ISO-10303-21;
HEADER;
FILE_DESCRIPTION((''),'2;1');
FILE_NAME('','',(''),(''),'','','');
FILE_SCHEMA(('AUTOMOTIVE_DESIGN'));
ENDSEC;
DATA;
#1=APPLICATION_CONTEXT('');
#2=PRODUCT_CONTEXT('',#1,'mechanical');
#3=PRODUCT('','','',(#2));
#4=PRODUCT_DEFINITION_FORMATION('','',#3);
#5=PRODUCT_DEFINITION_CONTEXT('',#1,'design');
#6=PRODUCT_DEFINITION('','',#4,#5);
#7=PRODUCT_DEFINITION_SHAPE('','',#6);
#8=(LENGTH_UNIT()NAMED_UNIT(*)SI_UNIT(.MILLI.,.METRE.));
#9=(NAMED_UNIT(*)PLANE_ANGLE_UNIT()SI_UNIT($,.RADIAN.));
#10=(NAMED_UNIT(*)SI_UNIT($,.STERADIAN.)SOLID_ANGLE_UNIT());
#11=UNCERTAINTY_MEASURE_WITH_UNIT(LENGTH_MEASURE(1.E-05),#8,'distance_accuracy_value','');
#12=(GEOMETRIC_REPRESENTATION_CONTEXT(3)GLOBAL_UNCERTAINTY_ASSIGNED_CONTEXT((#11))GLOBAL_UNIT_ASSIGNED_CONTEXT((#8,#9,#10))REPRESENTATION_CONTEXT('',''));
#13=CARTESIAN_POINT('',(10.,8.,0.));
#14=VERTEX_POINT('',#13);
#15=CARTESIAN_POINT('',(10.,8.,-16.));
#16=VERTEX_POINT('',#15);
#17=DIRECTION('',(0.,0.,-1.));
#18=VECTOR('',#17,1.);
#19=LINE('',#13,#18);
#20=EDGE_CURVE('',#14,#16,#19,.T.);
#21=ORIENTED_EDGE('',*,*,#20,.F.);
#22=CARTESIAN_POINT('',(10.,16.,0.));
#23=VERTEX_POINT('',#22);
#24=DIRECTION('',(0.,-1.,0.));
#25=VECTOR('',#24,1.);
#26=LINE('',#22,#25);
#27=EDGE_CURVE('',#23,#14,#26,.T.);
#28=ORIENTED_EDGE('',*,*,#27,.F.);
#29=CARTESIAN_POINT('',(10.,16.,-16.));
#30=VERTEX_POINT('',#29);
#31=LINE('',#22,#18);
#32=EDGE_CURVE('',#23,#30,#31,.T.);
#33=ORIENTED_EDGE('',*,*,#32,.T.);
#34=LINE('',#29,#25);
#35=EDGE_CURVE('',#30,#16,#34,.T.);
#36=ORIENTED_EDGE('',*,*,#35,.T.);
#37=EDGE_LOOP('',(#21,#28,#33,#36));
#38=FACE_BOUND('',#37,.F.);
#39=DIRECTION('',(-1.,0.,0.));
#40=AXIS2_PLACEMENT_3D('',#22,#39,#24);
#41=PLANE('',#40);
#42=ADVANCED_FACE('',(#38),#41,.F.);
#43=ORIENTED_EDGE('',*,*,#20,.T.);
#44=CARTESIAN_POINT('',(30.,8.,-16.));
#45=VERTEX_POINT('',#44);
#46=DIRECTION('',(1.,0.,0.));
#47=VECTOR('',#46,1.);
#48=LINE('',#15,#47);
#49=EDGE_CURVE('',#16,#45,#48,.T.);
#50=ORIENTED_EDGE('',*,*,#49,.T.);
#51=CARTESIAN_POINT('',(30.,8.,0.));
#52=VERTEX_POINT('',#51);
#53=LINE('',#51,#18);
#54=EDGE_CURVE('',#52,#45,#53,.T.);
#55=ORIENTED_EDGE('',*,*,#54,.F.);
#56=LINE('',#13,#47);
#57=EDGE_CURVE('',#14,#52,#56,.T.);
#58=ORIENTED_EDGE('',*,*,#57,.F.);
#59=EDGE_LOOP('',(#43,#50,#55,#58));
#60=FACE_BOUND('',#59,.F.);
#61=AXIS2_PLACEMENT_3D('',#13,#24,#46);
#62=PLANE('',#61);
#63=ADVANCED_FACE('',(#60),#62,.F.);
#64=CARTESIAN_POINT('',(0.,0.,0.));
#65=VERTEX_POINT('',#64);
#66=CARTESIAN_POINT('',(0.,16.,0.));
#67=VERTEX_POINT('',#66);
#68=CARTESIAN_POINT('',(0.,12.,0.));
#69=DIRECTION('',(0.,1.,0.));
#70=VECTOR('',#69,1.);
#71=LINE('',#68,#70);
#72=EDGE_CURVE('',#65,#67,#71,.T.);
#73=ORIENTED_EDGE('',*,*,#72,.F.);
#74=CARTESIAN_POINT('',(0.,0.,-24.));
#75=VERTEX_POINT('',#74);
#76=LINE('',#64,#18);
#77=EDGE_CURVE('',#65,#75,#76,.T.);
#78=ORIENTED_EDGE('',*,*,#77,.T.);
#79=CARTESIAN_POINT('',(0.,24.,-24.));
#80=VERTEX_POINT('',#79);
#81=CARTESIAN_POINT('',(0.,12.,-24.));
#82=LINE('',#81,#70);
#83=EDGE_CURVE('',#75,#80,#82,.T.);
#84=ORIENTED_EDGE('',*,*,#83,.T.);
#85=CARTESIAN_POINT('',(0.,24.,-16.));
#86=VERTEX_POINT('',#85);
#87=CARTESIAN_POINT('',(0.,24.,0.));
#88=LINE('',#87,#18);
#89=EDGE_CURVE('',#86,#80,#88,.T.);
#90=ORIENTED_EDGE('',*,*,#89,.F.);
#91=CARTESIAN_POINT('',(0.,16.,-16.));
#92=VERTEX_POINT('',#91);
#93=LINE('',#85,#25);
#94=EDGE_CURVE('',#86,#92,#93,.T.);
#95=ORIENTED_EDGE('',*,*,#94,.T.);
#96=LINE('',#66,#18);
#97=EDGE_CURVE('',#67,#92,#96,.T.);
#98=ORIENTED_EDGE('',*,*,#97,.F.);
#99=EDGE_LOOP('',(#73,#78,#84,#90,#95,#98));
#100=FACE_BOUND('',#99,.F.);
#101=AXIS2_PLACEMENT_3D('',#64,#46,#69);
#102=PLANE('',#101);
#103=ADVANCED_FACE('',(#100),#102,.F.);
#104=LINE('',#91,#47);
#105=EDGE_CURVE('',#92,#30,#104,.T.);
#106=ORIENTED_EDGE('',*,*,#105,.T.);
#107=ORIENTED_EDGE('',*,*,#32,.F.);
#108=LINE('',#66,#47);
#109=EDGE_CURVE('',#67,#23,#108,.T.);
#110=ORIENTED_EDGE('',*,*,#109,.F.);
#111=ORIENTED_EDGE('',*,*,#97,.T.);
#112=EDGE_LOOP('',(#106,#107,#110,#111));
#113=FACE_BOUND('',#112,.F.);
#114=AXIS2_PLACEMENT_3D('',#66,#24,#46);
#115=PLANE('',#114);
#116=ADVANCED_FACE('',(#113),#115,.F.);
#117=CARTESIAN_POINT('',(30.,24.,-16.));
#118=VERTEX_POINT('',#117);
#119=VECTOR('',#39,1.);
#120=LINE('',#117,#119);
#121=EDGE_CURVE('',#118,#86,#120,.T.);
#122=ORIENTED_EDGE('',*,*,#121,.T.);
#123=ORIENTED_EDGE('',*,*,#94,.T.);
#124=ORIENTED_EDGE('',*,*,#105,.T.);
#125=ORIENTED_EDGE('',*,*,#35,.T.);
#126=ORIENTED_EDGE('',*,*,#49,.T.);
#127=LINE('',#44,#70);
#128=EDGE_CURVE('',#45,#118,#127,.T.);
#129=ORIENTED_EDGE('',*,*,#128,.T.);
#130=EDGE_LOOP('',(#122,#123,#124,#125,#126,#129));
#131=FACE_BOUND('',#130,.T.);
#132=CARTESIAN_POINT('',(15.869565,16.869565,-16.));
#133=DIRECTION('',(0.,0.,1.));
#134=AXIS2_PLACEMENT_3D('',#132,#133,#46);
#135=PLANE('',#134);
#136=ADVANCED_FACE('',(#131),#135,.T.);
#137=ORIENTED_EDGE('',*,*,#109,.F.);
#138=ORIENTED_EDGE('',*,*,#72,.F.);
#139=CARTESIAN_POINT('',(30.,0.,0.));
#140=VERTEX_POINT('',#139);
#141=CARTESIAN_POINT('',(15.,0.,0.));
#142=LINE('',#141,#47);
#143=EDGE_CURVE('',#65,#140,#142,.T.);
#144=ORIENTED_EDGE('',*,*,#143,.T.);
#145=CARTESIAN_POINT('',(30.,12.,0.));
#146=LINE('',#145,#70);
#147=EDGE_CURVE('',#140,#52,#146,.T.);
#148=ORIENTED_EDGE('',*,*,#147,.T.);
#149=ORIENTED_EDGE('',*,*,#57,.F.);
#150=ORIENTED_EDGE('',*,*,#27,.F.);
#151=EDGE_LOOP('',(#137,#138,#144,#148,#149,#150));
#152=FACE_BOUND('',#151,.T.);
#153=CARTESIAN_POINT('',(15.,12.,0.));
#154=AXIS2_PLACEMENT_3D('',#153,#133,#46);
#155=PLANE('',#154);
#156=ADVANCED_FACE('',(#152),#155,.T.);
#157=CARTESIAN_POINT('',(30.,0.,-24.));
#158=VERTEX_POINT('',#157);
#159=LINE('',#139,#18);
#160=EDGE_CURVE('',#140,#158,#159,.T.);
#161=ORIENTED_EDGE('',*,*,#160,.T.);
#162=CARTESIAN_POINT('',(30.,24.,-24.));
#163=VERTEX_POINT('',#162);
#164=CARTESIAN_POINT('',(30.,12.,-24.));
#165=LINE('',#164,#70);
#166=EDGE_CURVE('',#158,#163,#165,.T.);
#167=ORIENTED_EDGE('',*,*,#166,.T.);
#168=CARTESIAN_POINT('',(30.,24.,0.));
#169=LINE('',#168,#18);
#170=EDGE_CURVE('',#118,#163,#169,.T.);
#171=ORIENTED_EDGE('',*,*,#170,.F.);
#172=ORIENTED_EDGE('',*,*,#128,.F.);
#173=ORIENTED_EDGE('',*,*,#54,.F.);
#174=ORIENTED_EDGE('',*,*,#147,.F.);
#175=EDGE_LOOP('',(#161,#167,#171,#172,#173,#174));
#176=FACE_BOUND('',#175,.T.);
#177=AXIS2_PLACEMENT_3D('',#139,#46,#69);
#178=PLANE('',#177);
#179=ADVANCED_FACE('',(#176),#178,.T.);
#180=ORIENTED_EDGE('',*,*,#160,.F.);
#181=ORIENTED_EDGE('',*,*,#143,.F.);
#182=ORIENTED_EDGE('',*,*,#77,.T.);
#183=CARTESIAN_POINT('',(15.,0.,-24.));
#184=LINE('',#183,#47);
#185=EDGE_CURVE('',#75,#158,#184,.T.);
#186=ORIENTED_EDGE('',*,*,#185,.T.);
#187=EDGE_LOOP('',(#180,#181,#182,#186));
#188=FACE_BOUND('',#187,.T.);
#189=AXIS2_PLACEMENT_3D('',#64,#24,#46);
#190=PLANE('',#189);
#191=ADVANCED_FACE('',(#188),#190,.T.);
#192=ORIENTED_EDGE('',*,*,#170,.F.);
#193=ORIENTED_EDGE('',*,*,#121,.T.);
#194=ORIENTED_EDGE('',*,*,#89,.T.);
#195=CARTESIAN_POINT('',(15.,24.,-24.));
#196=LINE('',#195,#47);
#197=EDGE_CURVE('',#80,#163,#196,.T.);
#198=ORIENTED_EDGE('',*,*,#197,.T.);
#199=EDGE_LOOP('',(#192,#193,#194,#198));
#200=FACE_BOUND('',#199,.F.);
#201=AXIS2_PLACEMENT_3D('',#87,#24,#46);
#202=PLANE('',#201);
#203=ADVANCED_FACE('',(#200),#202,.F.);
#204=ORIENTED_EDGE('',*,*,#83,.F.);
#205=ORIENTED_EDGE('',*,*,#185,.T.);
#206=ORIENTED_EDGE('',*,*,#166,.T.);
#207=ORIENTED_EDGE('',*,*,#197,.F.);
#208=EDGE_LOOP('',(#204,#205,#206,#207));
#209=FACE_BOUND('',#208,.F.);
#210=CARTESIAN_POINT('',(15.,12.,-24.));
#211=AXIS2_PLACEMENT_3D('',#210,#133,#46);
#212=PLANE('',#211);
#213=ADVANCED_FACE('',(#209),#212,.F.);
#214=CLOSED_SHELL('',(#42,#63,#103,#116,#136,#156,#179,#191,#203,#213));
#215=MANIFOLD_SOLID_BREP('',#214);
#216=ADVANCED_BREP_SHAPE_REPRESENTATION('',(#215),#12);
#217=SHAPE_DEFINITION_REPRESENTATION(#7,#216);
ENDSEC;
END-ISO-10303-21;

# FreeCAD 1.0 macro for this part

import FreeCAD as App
import Part
import Sketcher
from FreeCAD import Vector


def add_polygon(sketch, points):
    """Adds a closed chain of lines whose ends are joined by coincident constraints."""
    first, n = sketch.GeometryCount, len(points)
    for a, b in zip(points, points[1:] + points[:1]):
        sketch.addGeometry(Part.LineSegment(App.Vector(*a, 0), App.Vector(*b, 0)), False)
    for i in range(n):
        sketch.addConstraint(Sketcher.Constraint("Coincident", first + i, 2, first + (i + 1) % n, 1))

doc = App.newDocument("Part")
params = doc.addObject("Spreadsheet::Sheet", "Params")
for row, (alias, value) in enumerate([
    ("sketch1_width", "30 mm"),
    ("sketch1_height", "24 mm"),
    ("pad1_length", "24 mm"),
    ("sketch2_width", "20 mm"),
    ("sketch2_width2", "30 mm"),
    ("sketch2_height", "16 mm"),
    ("pocket1_length", "16 mm"),
], start=1):
    params.set(f"A{row}", alias)
    params.set(f"B{row}", "=" + value)
    params.setAlias(f"B{row}", alias)

body = doc.addObject("PartDesign::Body", "Body")

# Sketch on XY plane
sketch1 = body.newObject("Sketcher::SketchObject", "Sketch")
sketch1.AttachmentSupport = (doc.getObject("XY_Plane"), [""])
sketch1.MapMode = "FlatFace"
add_polygon(sketch1, [(0, 24), (0, 0), (30, 0), (30, 24)])  # lines 0-3
sketch1.addConstraint([
    Sketcher.Constraint("Vertical", 0),
    Sketcher.Constraint("Horizontal", 1),
    Sketcher.Constraint("Vertical", 2),
    Sketcher.Constraint("Horizontal", 3),
    Sketcher.Constraint("Coincident", 0, 2, -1, 1),
    Sketcher.Constraint("DistanceX", 1, 1, 1, 2, 30.0),
    Sketcher.Constraint("DistanceY", 0, 2, 0, 1, 24.0),
])
sketch1.setExpression("Constraints[9]", "Params.sketch1_width")
sketch1.setExpression("Constraints[10]", "Params.sketch1_height")
pad1 = body.newObject("PartDesign::Pad", "Pad")
pad1.Profile = sketch1
pad1.setExpression("Length", "Params.pad1_length")
pad1.Reversed = True

# Sketch on XY plane
sketch2 = body.newObject("Sketcher::SketchObject", "Sketch001")
sketch2.AttachmentSupport = (doc.getObject("XY_Plane"), [""])
sketch2.MapMode = "FlatFace"
add_polygon(sketch2, [(10, 8), (30, 8), (30, 24), (0, 24), (0, 16), (10, 16)])  # lines 0-5
sketch2.addConstraint([
    Sketcher.Constraint("Horizontal", 0),
    Sketcher.Constraint("Vertical", 1),
    Sketcher.Constraint("Horizontal", 2),
    Sketcher.Constraint("Vertical", 3),
    Sketcher.Constraint("Horizontal", 4),
    Sketcher.Constraint("Vertical", 5),
    Sketcher.Constraint("PointOnObject", 2, 2, -2),
    Sketcher.Constraint("Equal", 3, 5),
    Sketcher.Constraint("DistanceX", 0, 1, 0, 2, 20.0),
    Sketcher.Constraint("DistanceX", 2, 2, 2, 1, 30.0),
    Sketcher.Constraint("DistanceY", 1, 1, 1, 2, 16.0),
    Sketcher.Constraint("DistanceY", -1, 1, 0, 2, 8.0),
])
sketch2.setExpression("Constraints[14]", "Params.sketch2_width")
sketch2.setExpression("Constraints[15]", "Params.sketch2_width2")
sketch2.setExpression("Constraints[16]", "Params.sketch2_height")
pocket1 = body.newObject("PartDesign::Pocket", "Pocket")
pocket1.Profile = sketch2
pocket1.setExpression("Length", "Params.pocket1_length")

doc.recompute()
